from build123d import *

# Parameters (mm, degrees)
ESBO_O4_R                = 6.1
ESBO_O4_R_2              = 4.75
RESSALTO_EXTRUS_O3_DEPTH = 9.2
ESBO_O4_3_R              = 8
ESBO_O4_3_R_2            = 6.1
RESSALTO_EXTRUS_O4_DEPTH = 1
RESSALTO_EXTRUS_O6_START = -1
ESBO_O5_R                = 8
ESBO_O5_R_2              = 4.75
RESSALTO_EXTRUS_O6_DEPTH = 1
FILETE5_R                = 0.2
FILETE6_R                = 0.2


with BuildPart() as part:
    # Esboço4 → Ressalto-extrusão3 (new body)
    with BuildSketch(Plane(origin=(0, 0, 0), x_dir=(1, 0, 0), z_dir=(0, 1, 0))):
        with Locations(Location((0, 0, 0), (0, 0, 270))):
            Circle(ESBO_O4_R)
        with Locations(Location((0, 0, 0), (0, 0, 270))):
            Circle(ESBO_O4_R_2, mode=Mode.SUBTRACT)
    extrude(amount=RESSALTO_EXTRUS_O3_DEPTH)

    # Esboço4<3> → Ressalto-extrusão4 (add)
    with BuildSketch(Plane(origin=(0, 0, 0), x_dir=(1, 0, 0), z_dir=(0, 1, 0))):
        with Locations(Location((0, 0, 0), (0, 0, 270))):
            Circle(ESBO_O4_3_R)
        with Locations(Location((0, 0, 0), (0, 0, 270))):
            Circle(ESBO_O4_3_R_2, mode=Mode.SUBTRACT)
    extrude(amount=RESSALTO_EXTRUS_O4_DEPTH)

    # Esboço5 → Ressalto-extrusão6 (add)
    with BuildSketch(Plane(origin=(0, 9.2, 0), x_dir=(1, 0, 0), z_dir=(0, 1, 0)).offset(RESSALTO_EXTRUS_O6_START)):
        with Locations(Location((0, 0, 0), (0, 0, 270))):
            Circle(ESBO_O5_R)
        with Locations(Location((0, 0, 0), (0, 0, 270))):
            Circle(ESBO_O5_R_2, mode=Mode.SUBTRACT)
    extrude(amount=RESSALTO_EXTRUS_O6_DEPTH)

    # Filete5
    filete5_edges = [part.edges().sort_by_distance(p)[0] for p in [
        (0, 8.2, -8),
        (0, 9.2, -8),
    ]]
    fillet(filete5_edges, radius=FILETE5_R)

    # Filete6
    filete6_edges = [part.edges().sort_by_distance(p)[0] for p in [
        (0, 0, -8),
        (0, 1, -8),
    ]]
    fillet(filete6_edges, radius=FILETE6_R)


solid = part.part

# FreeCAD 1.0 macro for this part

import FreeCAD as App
import Part
import Sketcher
from FreeCAD import Vector
Q = App.Units.Quantity


def edges_at(feature, points):
    """Names of the edges that pass closest to the given points."""
    edges = feature.Shape.Edges
    near = lambda p: min(range(len(edges)), key=lambda i: edges[i].distToShape(Part.Vertex(*p))[0])
    return sorted({f"Edge{near(p) + 1}" for p in points})

doc = App.newDocument("Part")
body = doc.addObject("PartDesign::Body", "Body")

sketch1 = body.newObject("Sketcher::SketchObject", "Sketch")
sketch1.AttachmentSupport = (doc.getObject("XZ_Plane"), [""])
sketch1.MapMode = "FlatFace"
sketch1.addGeometry([
    Part.Circle(Vector(0, 0, 0), Vector(0, 0, 1), 6.1),
    Part.Circle(Vector(0, 0, 0), Vector(0, 0, 1), 4.8),
], False)
sketch1.addConstraint([
    Sketcher.Constraint("Coincident", 0, 3, -1, 1),
    Sketcher.Constraint("Coincident", 1, 3, -1, 1),
    Sketcher.Constraint("Diameter", 0, Q("12.2 mm")),
    Sketcher.Constraint("Diameter", 1, Q("9.5 mm")),
])
pad1 = body.newObject("PartDesign::Pad", "Pad")
pad1.Profile = sketch1
pad1.Length = 9.2
pad1.Reversed = True

sketch2 = body.newObject("Sketcher::SketchObject", "Sketch001")
sketch2.AttachmentSupport = (doc.getObject("XZ_Plane"), [""])
sketch2.MapMode = "FlatFace"
sketch2.addGeometry([
    Part.Circle(Vector(0, 0, 0), Vector(0, 0, 1), 8),
    Part.Circle(Vector(0, 0, 0), Vector(0, 0, 1), 6),
], False)
sketch2.addConstraint([
    Sketcher.Constraint("Coincident", 0, 3, -1, 1),
    Sketcher.Constraint("Coincident", 1, 3, -1, 1),
    Sketcher.Constraint("Diameter", 0, Q("16 mm")),
    Sketcher.Constraint("Diameter", 1, Q("12.2 mm")),
])
pad2 = body.newObject("PartDesign::Pad", "Pad001")
pad2.Profile = sketch2
pad2.Length = 1
pad2.Reversed = True

sketch3 = body.newObject("Sketcher::SketchObject", "Sketch002")
sketch3.AttachmentSupport = (doc.getObject("XZ_Plane"), [""])
sketch3.MapMode = "FlatFace"
sketch3.AttachmentOffset = App.Placement(Vector(0, 0, -8.2), App.Rotation())
sketch3.addGeometry([
    Part.Circle(Vector(0, 0, 0), Vector(0, 0, 1), 8),
    Part.Circle(Vector(0, 0, 0), Vector(0, 0, 1), 4.8),
], False)
sketch3.addConstraint([
    Sketcher.Constraint("Coincident", 0, 3, -1, 1),
    Sketcher.Constraint("Coincident", 1, 3, -1, 1),
    Sketcher.Constraint("Diameter", 0, Q("16 mm")),
    Sketcher.Constraint("Diameter", 1, Q("9.5 mm")),
])
pad3 = body.newObject("PartDesign::Pad", "Pad002")
pad3.Profile = sketch3
pad3.Length = 1
pad3.Reversed = True
doc.recompute()

fillet = body.newObject("PartDesign::Fillet", "Fillet")
fillet.Base = (pad3, edges_at(pad3, [(0, 8.2, -8), (0, 9.2, -8)]))
fillet.Radius = 0.2
doc.recompute()

fillet2 = body.newObject("PartDesign::Fillet", "Fillet001")
fillet2.Base = (fillet, edges_at(fillet, [(0, 0, -8), (0, 1, -8)]))
fillet2.Radius = 0.2

doc.recompute()
